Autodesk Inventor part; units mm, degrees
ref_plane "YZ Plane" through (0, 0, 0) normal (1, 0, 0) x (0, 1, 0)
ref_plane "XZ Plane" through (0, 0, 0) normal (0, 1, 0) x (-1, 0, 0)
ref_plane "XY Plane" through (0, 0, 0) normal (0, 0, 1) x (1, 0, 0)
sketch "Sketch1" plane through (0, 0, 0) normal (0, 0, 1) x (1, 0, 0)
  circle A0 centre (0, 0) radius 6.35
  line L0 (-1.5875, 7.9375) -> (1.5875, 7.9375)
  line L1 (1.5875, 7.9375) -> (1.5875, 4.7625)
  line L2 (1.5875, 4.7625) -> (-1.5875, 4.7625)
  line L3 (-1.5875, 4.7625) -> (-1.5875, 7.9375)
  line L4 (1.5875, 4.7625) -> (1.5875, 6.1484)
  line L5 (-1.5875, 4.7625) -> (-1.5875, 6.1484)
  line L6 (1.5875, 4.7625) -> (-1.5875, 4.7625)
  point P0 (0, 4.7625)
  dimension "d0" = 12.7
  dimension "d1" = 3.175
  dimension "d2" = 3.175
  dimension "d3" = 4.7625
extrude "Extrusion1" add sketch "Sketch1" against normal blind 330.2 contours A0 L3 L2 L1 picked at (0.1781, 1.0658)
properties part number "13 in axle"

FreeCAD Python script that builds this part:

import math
import FreeCAD as App
import Part
import Sketcher
from FreeCAD import Vector
Q = App.Units.Quantity

doc = App.newDocument("Part")
body = doc.addObject("PartDesign::Body", "Body")

# Sketch on XY plane
sketch1 = doc.addObject("Sketcher::SketchObject", "Sketch")
body.addObject(sketch1)
sketch1.AttachmentSupport = (doc.XY_Plane, [""])
sketch1.MapMode = "FlatFace"
sketch1.addGeometry(Part.ArcOfCircle(Part.Circle(Vector(0, 0, 0), Vector(0, 0, 1), 6.35), math.radians(104.477424), math.radians(435.522576)), False)
sketch1.addGeometry(Part.LineSegment(Vector(1.5875, 6.1484, 0), Vector(1.5875, 4.7625, 0)), False)
sketch1.addGeometry(Part.LineSegment(Vector(1.5875, 4.7625, 0), Vector(-1.5875, 4.7625, 0)), False)
sketch1.addGeometry(Part.LineSegment(Vector(-1.5875, 4.7625, 0), Vector(-1.5875, 6.1484, 0)), False)
sketch1.addConstraint(Sketcher.Constraint("Coincident", 0, 2, 1, 1))
sketch1.addConstraint(Sketcher.Constraint("Coincident", 1, 2, 2, 1))
sketch1.addConstraint(Sketcher.Constraint("Coincident", 2, 2, 3, 1))
sketch1.addConstraint(Sketcher.Constraint("Coincident", 3, 2, 0, 1))
sketch1.addConstraint(Sketcher.Constraint("Vertical", 1))
sketch1.addConstraint(Sketcher.Constraint("Horizontal", 2))
sketch1.addConstraint(Sketcher.Constraint("Vertical", 3))
sketch1.addConstraint(Sketcher.Constraint("Coincident", 0, 3, -1, 1))
sketch1.addConstraint(Sketcher.Constraint("Horizontal", 0, 2, 3, 2))
sketch1.addConstraint(Sketcher.Constraint("Radius", 0, Q("0.25 in")))
sketch1.addConstraint(Sketcher.Constraint("DistanceX", 2, 2, 2, 1, Q("0.125 in")))
sketch1.addConstraint(Sketcher.Constraint("DistanceY", -1, 1, 1, 2, Q("0.1875 in")))
pad1 = doc.addObject("PartDesign::Pad", "Pad")
body.addObject(pad1)
pad1.Profile = sketch1
pad1.Length = Q("13 in")
pad1.Reversed = True

doc.recompute()
